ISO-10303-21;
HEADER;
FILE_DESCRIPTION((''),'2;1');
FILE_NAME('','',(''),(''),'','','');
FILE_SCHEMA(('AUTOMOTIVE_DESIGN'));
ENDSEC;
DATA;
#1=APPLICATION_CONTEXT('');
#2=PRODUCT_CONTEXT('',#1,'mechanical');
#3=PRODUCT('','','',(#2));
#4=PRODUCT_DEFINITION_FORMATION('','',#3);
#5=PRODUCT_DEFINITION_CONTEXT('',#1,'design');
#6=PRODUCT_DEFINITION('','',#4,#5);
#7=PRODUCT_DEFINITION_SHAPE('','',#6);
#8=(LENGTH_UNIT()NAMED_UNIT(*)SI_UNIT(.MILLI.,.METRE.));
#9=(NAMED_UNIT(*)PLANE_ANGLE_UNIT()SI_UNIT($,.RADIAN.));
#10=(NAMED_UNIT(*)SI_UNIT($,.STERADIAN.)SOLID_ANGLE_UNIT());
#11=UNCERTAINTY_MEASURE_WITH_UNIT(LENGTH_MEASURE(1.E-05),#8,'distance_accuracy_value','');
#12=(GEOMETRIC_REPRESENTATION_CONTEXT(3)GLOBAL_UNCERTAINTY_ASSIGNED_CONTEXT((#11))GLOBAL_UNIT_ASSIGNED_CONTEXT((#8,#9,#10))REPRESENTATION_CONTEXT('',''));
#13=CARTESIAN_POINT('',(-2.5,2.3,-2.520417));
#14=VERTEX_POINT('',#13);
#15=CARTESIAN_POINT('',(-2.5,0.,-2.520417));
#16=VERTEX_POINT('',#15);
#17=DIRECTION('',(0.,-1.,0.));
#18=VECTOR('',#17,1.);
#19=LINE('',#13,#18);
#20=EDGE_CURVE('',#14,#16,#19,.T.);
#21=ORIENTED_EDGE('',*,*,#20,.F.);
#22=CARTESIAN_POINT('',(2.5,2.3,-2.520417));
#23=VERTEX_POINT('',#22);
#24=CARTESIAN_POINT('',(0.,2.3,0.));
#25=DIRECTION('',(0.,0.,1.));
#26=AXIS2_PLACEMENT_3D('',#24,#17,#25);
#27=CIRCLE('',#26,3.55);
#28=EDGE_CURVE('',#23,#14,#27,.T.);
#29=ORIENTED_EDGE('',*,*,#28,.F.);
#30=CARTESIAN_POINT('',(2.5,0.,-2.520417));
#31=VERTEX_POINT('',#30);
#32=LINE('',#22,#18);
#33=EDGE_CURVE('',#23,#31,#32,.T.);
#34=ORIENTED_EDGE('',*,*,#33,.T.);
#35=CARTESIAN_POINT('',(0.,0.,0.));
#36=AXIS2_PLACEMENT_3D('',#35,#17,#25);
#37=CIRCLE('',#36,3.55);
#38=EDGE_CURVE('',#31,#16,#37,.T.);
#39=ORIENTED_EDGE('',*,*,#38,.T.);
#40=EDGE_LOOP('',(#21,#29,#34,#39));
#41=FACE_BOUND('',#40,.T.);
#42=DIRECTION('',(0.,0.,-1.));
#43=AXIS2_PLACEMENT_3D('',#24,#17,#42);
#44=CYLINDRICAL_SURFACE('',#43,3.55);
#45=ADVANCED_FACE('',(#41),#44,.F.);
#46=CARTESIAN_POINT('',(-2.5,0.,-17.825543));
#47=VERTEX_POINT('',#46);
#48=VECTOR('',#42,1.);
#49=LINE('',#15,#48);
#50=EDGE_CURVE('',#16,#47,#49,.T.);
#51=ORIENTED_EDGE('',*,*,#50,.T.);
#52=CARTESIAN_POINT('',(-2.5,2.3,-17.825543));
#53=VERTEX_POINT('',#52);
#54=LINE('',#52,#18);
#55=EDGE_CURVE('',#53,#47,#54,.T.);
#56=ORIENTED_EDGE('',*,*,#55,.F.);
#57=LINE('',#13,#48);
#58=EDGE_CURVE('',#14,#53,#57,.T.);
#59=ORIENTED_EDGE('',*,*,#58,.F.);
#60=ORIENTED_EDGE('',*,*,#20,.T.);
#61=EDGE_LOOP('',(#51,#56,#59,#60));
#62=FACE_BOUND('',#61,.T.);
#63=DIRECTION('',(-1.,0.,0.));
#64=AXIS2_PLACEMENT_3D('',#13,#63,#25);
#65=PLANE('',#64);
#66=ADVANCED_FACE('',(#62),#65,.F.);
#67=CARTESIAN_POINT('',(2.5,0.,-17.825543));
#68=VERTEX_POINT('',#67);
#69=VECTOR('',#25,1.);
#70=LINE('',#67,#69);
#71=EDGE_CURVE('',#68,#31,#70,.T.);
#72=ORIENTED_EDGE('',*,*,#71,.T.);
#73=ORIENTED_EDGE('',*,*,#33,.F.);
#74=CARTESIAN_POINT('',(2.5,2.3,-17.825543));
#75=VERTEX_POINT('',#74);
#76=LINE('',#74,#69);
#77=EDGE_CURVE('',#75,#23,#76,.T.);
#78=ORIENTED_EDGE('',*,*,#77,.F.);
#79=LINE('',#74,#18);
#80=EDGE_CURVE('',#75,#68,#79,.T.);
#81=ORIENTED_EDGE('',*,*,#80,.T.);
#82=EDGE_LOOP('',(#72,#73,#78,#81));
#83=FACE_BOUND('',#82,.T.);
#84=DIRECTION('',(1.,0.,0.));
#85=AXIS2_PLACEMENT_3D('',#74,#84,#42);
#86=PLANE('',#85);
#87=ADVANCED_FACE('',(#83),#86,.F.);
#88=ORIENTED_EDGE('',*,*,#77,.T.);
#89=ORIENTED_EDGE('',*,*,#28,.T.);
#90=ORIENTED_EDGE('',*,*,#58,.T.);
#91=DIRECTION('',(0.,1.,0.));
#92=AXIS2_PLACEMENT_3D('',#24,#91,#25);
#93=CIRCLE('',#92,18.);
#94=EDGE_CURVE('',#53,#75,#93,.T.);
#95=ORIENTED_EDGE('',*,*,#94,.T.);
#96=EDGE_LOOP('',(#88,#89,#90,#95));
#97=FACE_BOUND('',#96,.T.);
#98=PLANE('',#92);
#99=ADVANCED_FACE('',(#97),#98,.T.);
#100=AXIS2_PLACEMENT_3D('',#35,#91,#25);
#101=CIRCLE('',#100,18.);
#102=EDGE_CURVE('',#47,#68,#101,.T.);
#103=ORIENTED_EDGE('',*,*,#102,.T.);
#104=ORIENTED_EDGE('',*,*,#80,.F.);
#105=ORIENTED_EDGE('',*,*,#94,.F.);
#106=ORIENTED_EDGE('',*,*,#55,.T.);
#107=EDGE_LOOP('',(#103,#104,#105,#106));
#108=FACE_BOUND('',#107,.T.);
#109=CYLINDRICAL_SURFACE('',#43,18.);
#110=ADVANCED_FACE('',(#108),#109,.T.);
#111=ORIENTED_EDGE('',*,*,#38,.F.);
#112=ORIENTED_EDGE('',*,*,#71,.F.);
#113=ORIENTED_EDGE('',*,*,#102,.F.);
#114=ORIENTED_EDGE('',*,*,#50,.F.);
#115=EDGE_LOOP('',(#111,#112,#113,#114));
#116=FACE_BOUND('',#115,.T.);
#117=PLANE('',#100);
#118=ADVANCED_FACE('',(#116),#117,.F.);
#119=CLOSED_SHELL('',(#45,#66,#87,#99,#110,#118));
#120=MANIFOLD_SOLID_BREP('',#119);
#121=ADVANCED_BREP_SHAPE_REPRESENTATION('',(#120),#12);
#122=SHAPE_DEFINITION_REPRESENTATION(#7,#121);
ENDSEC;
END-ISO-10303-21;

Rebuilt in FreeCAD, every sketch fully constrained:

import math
import FreeCAD as App
import Part
import Sketcher
Q = App.Units.Quantity

doc = App.newDocument("Part")
body = doc.addObject("PartDesign::Body", "Body")

# Sketch on XZ plane
sketch1 = body.newObject("Sketcher::SketchObject", "Sketch")
sketch1.AttachmentSupport = (doc.getObject("XZ_Plane"), [""])
sketch1.MapMode = "FlatFace"
sketch1.addGeometry(Part.LineSegment(App.Vector(-2.5, -2.5, 0), App.Vector(-2.5, -17.8, 0)), False)
sketch1.addGeometry(Part.ArcOfCircle(Part.Circle(App.Vector(0, 0, 0), App.Vector(0, 0, 1), 18), math.radians(-82), math.radians(262)), False)
sketch1.addGeometry(Part.LineSegment(App.Vector(2.5, -17.8, 0), App.Vector(2.5, -2.5, 0)), False)
sketch1.addGeometry(Part.ArcOfCircle(Part.Circle(App.Vector(0, 0, 0), App.Vector(0, 0, 1), 3.5), math.radians(-45), math.radians(225)), False)
sketch1.addConstraint(Sketcher.Constraint("Coincident", 0, 2, 1, 2))
sketch1.addConstraint(Sketcher.Constraint("Coincident", 1, 1, 2, 1))
sketch1.addConstraint(Sketcher.Constraint("Coincident", 2, 2, 3, 1))
sketch1.addConstraint(Sketcher.Constraint("Coincident", 3, 2, 0, 1))
sketch1.addConstraint(Sketcher.Constraint("Vertical", 0))
sketch1.addConstraint(Sketcher.Constraint("Vertical", 2))
sketch1.addConstraint(Sketcher.Constraint("Coincident", 1, 3, -1, 1))
sketch1.addConstraint(Sketcher.Constraint("Coincident", 3, 3, -1, 1))
sketch1.addConstraint(Sketcher.Constraint("Horizontal", 0, 2, 1, 1))
sketch1.addConstraint(Sketcher.Constraint("Radius", 1, Q("18 mm")))
sketch1.addConstraint(Sketcher.Constraint("Radius", 3, Q("3.55 mm")))
sketch1.addConstraint(Sketcher.Constraint("DistanceX", 0, 2, 1, 1, Q("5 mm")))
pad1 = body.newObject("PartDesign::Pad", "Pad")
pad1.Profile = sketch1
pad1.Length = 2.3
pad1.Reversed = True

doc.recompute()
